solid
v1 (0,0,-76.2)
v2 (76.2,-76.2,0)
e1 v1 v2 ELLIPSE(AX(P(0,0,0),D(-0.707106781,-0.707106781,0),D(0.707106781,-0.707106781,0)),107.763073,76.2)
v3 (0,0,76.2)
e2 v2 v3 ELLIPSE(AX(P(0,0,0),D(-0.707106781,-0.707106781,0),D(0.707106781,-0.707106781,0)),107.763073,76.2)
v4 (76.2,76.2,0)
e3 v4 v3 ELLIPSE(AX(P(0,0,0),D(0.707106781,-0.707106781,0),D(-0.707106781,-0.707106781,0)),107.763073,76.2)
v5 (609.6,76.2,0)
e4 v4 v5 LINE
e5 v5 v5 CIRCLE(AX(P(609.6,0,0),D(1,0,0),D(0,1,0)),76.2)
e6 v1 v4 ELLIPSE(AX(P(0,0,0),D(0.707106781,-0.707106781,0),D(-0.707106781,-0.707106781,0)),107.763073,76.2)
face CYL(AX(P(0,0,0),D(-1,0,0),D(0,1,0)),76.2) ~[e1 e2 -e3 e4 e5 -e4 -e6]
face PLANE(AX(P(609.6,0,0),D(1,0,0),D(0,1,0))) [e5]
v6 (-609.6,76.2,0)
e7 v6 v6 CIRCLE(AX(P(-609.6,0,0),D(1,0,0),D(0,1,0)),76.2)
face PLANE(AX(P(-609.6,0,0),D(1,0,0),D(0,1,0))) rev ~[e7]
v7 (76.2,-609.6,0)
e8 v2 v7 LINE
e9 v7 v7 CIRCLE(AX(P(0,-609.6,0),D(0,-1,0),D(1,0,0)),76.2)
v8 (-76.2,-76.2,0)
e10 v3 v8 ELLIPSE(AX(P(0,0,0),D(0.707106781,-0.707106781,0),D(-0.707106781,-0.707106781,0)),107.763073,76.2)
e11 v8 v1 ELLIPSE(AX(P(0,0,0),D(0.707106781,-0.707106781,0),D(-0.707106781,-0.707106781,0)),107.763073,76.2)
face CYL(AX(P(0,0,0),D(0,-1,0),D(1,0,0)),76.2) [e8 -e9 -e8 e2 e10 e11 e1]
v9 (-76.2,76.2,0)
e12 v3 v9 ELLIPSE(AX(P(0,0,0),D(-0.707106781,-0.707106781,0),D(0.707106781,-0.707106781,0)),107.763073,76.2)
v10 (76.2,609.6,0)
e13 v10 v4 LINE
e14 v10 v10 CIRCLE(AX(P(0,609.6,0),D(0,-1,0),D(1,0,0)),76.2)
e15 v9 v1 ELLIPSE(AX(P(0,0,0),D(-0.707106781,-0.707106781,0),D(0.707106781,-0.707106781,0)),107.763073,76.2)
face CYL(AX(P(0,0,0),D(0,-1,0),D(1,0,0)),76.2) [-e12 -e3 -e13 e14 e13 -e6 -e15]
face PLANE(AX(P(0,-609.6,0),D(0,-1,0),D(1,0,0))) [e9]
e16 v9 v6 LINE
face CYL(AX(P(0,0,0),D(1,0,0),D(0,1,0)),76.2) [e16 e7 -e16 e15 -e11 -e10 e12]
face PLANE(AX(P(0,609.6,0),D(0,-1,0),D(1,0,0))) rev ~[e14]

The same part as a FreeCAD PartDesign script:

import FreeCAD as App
import Part
import Sketcher

V = App.Vector
Q = App.Units.Quantity

doc = App.newDocument("Part")
body = doc.addObject("PartDesign::Body", "Body")

sketch1 = doc.addObject("Sketcher::SketchObject", "Sketch")
body.addObject(sketch1)
sketch1.AttachmentSupport = (doc.XZ_Plane, [""])
sketch1.MapMode = "FlatFace"
sketch1.addGeometry(Part.Circle(V(0, 0, 0), V(0, 0, 1), 76.2), False)
sketch1.addConstraint([
    Sketcher.Constraint("Coincident", 0, 3, -1, 1),
    Sketcher.Constraint("Diameter", 0, Q("6 in")),
])
pad1 = doc.addObject("PartDesign::Pad", "Pad")
body.addObject(pad1)
pad1.Profile = sketch1
pad1.Type = "TwoLengths"
pad1.Length = Q("24 in")
pad1.Length2 = Q("24 in")

sketch2 = doc.addObject("Sketcher::SketchObject", "Sketch001")
body.addObject(sketch2)
sketch2.AttachmentSupport = (doc.YZ_Plane, [""])
sketch2.MapMode = "FlatFace"
sketch2.addGeometry(Part.Circle(V(0, 0, 0), V(0, 0, 1), 76.2), False)
sketch2.addConstraint([
    Sketcher.Constraint("Coincident", 0, 3, -1, 1),
    Sketcher.Constraint("Diameter", 0, Q("6 in")),
])
pad2 = doc.addObject("PartDesign::Pad", "Pad001")
body.addObject(pad2)
pad2.Profile = sketch2
pad2.Type = "TwoLengths"
pad2.Length = Q("24 in")
pad2.Length2 = Q("24 in")

doc.recompute()
